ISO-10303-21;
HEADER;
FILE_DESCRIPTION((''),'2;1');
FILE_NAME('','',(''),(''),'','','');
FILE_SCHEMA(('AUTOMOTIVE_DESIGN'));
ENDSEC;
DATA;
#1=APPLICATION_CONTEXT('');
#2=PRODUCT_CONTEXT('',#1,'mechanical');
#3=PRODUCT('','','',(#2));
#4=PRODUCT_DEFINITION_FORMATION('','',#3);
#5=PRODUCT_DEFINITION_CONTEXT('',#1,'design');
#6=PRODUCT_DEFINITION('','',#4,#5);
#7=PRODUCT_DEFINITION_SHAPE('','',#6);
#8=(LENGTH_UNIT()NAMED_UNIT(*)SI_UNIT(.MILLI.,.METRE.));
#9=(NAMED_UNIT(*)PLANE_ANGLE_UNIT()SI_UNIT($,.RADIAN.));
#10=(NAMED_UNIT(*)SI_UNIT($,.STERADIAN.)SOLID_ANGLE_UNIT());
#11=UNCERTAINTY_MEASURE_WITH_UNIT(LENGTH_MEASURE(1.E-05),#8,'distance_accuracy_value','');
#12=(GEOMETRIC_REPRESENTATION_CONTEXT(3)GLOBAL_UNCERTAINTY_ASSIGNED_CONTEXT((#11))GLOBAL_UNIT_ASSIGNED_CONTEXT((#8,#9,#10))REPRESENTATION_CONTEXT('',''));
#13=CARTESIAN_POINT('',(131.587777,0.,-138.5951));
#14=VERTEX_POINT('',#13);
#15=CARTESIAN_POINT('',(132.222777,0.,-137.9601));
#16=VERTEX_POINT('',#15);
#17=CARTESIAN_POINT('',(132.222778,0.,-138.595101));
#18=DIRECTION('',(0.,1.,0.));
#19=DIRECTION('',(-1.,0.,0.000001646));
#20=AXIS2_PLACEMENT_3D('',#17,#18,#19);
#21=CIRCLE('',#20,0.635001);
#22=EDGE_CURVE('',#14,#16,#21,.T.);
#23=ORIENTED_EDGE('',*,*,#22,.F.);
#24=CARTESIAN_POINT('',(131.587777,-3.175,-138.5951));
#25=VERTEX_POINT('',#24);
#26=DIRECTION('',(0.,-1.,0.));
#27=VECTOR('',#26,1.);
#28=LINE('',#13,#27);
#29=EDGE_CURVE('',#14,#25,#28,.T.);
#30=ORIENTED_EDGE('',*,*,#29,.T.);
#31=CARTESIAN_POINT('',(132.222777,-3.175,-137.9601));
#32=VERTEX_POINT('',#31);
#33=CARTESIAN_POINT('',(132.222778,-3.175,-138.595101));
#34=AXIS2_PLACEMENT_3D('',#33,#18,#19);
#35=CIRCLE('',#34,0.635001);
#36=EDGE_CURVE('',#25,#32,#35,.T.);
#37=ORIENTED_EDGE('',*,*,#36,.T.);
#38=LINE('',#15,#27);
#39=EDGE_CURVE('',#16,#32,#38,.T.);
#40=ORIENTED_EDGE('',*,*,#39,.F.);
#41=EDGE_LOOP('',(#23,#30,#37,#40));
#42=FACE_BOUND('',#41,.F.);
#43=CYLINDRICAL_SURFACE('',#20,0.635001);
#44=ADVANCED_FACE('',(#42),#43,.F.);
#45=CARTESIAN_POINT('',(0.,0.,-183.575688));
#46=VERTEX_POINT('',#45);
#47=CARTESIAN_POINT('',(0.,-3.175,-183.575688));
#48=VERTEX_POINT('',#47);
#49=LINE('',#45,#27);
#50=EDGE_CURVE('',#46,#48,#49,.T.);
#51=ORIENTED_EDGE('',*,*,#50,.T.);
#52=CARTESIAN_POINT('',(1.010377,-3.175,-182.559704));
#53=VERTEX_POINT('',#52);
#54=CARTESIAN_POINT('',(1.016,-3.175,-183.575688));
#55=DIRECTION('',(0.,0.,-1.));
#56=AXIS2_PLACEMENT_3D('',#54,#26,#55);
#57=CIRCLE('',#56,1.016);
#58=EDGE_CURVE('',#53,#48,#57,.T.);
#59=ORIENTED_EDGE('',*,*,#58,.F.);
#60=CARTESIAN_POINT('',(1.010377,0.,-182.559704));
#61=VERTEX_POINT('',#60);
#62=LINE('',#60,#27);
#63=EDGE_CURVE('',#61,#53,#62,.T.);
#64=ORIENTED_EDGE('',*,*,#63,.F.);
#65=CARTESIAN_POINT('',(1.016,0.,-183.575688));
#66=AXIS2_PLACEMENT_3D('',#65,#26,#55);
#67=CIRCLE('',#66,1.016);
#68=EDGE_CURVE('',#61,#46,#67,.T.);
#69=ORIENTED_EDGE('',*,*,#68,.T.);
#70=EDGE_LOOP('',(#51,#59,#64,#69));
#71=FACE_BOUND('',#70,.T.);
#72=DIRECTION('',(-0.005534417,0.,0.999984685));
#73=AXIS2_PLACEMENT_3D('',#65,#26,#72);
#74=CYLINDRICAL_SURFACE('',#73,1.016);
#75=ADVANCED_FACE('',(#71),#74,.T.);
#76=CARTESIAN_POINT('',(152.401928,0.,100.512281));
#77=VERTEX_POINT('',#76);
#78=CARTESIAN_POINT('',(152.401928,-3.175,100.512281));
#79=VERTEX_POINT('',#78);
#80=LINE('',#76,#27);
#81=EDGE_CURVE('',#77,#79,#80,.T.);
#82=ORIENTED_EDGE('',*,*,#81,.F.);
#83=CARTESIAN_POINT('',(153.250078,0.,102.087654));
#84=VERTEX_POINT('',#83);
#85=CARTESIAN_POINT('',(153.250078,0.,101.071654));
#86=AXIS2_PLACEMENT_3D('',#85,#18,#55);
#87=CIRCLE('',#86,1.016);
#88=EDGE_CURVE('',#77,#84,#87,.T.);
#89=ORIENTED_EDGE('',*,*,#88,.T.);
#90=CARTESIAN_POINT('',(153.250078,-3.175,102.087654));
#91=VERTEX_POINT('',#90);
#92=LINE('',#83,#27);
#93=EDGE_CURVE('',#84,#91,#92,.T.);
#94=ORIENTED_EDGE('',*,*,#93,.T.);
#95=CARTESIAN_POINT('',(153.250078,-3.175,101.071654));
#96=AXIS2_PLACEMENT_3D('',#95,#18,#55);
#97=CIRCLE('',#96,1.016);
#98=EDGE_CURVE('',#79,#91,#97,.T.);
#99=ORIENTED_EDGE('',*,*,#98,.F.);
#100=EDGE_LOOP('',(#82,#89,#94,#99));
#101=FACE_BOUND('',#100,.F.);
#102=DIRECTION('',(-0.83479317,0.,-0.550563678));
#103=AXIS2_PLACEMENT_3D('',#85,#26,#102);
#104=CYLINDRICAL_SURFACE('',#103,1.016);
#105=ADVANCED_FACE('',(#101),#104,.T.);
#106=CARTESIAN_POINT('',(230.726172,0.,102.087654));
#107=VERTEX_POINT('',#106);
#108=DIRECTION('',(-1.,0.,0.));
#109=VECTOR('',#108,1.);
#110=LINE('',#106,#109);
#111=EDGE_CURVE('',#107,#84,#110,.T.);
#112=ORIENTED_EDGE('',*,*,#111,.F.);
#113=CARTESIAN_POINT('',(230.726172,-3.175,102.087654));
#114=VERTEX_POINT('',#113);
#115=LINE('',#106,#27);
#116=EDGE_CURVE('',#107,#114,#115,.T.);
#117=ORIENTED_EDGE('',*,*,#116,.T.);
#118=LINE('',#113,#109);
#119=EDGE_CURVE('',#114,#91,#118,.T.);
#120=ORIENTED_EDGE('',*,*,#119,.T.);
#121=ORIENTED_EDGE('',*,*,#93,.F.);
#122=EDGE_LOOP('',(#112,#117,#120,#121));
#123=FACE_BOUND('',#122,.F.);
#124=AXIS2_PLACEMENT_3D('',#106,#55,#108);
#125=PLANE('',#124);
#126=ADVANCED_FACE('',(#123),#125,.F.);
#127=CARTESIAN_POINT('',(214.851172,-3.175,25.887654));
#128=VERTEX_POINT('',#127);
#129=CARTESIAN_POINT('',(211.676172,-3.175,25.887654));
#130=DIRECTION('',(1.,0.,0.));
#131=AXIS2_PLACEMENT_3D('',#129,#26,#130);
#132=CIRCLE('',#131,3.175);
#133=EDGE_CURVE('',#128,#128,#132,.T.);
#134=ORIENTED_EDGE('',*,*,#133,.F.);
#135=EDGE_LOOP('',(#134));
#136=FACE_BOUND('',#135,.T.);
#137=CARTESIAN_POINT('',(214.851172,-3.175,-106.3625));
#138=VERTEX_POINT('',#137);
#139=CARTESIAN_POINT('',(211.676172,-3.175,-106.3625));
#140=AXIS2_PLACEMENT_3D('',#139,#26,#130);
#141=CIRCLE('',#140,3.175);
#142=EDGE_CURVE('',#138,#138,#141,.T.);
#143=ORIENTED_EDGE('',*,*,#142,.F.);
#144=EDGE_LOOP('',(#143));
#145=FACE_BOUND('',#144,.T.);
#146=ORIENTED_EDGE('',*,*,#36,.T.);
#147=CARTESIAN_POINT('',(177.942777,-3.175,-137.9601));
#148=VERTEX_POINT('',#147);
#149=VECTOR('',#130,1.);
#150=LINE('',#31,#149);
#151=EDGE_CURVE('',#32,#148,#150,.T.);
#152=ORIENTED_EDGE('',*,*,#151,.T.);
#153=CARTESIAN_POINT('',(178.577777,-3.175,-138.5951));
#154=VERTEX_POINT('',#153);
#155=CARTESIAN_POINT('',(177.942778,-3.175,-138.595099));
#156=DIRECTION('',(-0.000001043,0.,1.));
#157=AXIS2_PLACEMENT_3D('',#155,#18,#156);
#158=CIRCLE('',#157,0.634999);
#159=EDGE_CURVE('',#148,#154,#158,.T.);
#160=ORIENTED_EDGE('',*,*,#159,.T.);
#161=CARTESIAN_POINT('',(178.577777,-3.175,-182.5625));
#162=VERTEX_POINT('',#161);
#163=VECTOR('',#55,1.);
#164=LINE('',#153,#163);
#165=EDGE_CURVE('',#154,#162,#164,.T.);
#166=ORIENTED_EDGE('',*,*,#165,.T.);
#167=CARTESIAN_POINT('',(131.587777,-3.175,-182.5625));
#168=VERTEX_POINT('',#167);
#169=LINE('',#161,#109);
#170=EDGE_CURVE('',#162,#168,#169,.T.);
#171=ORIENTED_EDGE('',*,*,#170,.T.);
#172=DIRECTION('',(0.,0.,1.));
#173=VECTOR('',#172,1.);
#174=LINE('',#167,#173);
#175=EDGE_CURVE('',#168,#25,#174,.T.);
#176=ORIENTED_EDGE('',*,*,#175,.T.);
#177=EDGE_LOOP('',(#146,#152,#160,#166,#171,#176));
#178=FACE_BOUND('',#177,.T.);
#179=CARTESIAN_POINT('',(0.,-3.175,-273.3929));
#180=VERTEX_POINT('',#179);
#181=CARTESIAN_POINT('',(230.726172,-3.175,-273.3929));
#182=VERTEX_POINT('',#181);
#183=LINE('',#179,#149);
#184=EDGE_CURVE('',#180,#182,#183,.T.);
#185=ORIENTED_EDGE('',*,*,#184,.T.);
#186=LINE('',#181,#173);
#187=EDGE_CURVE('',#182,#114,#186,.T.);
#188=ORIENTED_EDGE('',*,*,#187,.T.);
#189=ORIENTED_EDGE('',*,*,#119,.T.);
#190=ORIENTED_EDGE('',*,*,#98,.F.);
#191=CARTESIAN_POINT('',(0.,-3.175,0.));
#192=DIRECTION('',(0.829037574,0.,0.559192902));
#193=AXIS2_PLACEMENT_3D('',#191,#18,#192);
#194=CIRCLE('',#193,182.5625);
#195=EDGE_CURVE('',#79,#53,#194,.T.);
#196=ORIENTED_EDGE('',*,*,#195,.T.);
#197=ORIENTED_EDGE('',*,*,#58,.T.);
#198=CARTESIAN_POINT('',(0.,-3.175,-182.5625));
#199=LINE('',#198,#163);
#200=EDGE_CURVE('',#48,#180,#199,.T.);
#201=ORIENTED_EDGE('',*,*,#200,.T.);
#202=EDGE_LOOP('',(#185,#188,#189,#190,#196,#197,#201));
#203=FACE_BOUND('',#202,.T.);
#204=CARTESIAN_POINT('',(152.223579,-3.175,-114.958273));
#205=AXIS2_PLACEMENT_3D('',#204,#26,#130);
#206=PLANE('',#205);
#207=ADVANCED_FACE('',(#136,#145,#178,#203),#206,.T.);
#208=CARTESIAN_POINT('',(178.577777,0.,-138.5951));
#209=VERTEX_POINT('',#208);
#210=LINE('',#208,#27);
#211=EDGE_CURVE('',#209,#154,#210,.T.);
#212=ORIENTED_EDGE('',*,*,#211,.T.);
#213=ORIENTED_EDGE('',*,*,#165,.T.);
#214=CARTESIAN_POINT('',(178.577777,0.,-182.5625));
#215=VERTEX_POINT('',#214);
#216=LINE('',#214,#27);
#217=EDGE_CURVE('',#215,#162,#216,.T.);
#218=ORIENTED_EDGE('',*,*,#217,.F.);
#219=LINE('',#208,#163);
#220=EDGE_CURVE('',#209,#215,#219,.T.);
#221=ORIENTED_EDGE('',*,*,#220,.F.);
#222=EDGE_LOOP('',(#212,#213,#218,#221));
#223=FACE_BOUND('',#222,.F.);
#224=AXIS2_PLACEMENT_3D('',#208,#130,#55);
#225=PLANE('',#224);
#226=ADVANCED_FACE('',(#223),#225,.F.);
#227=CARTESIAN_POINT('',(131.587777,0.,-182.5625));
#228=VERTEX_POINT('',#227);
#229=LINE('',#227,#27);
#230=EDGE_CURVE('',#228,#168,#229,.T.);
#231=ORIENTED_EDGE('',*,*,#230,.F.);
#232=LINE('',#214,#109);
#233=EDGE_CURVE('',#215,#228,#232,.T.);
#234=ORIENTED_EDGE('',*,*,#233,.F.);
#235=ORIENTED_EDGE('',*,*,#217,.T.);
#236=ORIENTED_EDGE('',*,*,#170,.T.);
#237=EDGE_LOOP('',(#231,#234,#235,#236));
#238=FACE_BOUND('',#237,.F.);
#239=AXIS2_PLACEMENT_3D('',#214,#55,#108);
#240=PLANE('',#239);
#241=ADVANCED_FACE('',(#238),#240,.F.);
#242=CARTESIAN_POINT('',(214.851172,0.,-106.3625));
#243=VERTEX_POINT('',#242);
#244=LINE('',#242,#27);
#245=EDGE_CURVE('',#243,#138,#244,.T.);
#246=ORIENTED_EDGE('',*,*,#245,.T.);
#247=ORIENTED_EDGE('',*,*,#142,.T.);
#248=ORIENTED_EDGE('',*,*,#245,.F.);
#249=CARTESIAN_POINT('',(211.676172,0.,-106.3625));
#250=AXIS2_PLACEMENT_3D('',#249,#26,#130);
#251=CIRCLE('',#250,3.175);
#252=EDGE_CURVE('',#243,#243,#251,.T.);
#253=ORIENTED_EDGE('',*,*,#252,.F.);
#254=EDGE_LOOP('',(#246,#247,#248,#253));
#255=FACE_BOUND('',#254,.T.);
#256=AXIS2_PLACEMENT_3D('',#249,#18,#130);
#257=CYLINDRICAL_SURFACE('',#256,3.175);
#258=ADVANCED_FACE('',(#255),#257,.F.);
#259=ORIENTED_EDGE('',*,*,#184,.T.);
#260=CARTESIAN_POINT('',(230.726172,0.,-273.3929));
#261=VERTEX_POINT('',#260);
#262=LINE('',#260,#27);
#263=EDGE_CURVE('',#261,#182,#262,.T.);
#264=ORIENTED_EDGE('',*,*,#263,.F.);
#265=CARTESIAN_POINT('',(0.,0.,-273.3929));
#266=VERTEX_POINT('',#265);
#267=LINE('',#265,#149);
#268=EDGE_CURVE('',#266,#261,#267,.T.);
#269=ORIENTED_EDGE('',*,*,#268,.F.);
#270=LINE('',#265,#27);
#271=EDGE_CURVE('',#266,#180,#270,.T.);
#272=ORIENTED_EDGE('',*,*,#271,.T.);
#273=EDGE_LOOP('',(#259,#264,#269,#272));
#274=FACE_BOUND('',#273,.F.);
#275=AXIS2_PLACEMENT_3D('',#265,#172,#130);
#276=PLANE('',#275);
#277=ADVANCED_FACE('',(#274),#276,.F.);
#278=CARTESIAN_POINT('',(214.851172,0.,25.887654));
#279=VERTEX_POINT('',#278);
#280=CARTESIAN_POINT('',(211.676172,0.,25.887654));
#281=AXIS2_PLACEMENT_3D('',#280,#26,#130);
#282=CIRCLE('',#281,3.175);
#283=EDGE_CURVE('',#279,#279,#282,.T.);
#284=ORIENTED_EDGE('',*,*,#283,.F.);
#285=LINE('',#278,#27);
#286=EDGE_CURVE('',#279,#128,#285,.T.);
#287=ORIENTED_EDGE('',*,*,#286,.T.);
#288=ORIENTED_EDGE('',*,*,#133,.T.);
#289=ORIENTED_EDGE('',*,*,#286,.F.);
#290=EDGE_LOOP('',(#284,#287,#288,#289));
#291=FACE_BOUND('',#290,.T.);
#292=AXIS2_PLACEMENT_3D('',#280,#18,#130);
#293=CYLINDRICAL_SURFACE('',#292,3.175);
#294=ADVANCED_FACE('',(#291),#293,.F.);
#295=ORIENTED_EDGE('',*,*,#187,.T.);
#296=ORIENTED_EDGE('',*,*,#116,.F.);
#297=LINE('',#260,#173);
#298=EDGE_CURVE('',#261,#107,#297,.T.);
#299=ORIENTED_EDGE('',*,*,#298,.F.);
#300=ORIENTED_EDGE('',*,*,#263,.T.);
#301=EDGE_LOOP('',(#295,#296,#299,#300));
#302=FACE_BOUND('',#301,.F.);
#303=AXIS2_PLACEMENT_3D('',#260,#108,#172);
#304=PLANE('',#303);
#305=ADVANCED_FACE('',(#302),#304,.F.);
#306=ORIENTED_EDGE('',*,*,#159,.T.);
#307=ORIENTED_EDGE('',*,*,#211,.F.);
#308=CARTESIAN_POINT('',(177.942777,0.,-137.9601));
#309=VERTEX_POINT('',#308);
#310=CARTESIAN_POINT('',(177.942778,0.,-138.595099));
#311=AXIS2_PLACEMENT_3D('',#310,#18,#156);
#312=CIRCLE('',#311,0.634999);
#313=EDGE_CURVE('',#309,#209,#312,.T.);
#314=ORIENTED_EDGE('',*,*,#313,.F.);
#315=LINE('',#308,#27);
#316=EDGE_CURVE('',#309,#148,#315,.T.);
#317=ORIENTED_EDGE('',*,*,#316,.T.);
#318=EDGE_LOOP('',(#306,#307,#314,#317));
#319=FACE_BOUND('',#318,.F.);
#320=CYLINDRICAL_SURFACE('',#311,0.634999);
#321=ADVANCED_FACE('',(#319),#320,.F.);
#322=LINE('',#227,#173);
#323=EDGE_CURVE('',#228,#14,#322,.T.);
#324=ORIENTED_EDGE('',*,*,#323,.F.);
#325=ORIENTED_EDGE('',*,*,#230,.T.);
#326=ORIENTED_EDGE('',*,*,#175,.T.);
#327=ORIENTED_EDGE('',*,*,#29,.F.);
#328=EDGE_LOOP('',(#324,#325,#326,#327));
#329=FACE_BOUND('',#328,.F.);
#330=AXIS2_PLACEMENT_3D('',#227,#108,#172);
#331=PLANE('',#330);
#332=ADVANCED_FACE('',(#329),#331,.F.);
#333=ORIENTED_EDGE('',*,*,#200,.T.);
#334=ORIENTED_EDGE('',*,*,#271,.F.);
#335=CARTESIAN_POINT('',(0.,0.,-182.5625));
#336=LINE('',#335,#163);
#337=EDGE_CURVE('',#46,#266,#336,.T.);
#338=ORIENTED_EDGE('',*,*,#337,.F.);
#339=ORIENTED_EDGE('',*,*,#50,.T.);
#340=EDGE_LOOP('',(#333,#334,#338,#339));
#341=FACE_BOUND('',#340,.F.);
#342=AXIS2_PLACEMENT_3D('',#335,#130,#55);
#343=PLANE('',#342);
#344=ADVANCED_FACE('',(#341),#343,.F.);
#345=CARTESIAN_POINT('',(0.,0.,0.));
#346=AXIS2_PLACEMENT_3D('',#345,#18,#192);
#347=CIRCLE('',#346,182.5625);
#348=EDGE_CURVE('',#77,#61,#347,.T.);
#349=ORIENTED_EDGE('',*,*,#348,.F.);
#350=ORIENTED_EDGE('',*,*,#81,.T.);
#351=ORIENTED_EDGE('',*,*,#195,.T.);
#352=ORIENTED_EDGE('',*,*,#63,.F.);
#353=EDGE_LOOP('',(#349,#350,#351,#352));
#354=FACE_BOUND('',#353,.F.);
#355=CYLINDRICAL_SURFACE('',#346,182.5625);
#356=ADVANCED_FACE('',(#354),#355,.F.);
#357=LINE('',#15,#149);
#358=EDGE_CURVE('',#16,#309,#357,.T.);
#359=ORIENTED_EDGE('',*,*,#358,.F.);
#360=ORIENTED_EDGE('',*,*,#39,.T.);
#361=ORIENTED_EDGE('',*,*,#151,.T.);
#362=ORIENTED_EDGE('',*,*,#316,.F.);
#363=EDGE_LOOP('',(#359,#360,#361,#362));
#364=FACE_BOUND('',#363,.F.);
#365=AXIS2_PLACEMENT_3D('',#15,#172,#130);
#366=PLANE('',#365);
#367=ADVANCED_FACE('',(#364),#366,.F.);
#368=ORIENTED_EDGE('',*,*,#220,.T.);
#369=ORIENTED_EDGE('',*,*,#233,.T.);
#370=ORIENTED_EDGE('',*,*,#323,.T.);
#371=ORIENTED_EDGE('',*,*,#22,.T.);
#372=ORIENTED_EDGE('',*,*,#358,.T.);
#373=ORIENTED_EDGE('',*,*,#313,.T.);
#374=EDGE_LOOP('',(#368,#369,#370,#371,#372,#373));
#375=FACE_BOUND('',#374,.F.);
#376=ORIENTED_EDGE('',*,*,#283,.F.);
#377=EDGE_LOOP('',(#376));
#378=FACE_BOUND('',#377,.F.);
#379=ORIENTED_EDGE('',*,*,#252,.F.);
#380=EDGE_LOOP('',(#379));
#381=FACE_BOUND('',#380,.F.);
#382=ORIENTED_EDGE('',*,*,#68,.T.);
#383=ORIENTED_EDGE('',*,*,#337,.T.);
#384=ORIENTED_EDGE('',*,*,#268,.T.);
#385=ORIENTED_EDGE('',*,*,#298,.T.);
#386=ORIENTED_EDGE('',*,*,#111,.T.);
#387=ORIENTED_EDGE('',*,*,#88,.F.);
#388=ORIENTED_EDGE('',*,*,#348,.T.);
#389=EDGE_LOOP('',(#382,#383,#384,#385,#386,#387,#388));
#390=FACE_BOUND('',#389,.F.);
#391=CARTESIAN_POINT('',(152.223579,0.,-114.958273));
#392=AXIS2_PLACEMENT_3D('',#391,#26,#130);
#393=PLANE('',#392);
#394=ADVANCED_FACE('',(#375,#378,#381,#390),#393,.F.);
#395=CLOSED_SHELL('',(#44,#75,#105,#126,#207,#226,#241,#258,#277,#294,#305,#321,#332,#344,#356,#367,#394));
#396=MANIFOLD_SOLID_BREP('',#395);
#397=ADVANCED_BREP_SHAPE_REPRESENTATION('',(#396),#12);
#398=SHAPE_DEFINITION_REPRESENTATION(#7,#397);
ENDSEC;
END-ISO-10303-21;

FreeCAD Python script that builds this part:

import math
import FreeCAD as App
import Part
import Sketcher

V = App.Vector
Q = App.Units.Quantity


def edges_at(feature, points):
    """Names of the edges that pass closest to the given points."""
    edges = feature.Shape.Edges
    near = lambda p: min(range(len(edges)), key=lambda i: edges[i].distToShape(Part.Vertex(*p))[0])
    return sorted({f"Edge{near(p) + 1}" for p in points})

doc = App.newDocument("Part")
body = doc.addObject("PartDesign::Body", "Body")

# Sketch on XZ plane
sketch1 = body.newObject("Sketcher::SketchObject", "Sketch")
sketch1.AttachmentSupport = (doc.getObject("XZ_Plane"), [""])
sketch1.MapMode = "FlatFace"
sketch1.addGeometry(Part.ArcOfCircle(Part.Circle(V(0, 0, 0), V(0, 0, 1), 182.6), math.radians(-90), math.radians(34)), False)
sketch1.addGeometry(Part.LineSegment(V(0, -182.6, 0), V(0, -273.4, 0)), False)
sketch1.addGeometry(Part.LineSegment(V(0, -273.4, 0), V(230.7, -273.4, 0)), False)
sketch1.addGeometry(Part.LineSegment(V(230.7, -273.4, 0), V(230.7, 102.1, 0)), False)
sketch1.addGeometry(Part.LineSegment(V(230.7, 102.1, 0), V(151.4, 102.1, 0)), False)
sketch1.addGeometry(Part.LineSegment(V(131.6, -182.6, 0), V(131.6, -138.6, 0)), False)
sketch1.addGeometry(Part.ArcOfCircle(Part.Circle(V(132.2, -138.6, 0), V(0, 0, 1), 0.6), math.radians(90), math.radians(180)), False)
sketch1.addGeometry(Part.LineSegment(V(132.2, -138, 0), V(177.9, -138, 0)), False)
sketch1.addGeometry(Part.ArcOfCircle(Part.Circle(V(177.9, -138.6, 0), V(0, 0, 1), 0.6), math.radians(0), math.radians(90)), False)
sketch1.addGeometry(Part.LineSegment(V(178.6, -138.6, 0), V(178.6, -182.6, 0)), False)
sketch1.addGeometry(Part.LineSegment(V(178.6, -182.6, 0), V(131.6, -182.6, 0)), False)
sketch1.addGeometry(Part.Circle(V(211.7, -106.4, 0), V(0, 0, 1), 3.2), False)
sketch1.addGeometry(Part.Circle(V(211.7, 25.9, 0), V(0, 0, 1), 3.2), False)
sketch1.addConstraint(Sketcher.Constraint("Coincident", 0, 1, 1, 1))
sketch1.addConstraint(Sketcher.Constraint("Coincident", 1, 2, 2, 1))
sketch1.addConstraint(Sketcher.Constraint("Coincident", 2, 2, 3, 1))
sketch1.addConstraint(Sketcher.Constraint("Coincident", 3, 2, 4, 1))
sketch1.addConstraint(Sketcher.Constraint("Coincident", 4, 2, 0, 2))
sketch1.addConstraint(Sketcher.Constraint("Tangent", 5, 2, 6, 2))
sketch1.addConstraint(Sketcher.Constraint("Tangent", 6, 1, 7, 1))
sketch1.addConstraint(Sketcher.Constraint("Tangent", 7, 2, 8, 2))
sketch1.addConstraint(Sketcher.Constraint("Tangent", 8, 1, 9, 1))
sketch1.addConstraint(Sketcher.Constraint("Coincident", 9, 2, 10, 1))
sketch1.addConstraint(Sketcher.Constraint("Coincident", 10, 2, 5, 1))
sketch1.addConstraint(Sketcher.Constraint("Vertical", 1))
sketch1.addConstraint(Sketcher.Constraint("Horizontal", 2))
sketch1.addConstraint(Sketcher.Constraint("Vertical", 3))
sketch1.addConstraint(Sketcher.Constraint("Horizontal", 4))
sketch1.addConstraint(Sketcher.Constraint("Vertical", 5))
sketch1.addConstraint(Sketcher.Constraint("Horizontal", 7))
sketch1.addConstraint(Sketcher.Constraint("Vertical", 9))
sketch1.addConstraint(Sketcher.Constraint("Horizontal", 10))
sketch1.addConstraint(Sketcher.Constraint("Coincident", 0, 3, -1, 1))
sketch1.addConstraint(Sketcher.Constraint("Equal", 6, 8))
sketch1.addConstraint(Sketcher.Constraint("Equal", 11, 12))
sketch1.addConstraint(Sketcher.Constraint("PointOnObject", 0, 1, -2))
sketch1.addConstraint(Sketcher.Constraint("Horizontal", 0, 1, 9, 2))
sketch1.addConstraint(Sketcher.Constraint("Vertical", 11, 3, 12, 3))
sketch1.addConstraint(Sketcher.Constraint("Diameter", 11, Q("0.25 in")))
sketch1.addConstraint(Sketcher.Constraint("DistanceX", 7, 1, 7, 2, Q("1.8 in")))
sketch1.addConstraint(Sketcher.Constraint("Radius", 0, Q("7.1875 in")))
sketch1.addConstraint(Sketcher.Constraint("Radius", 6, Q("0.025 in")))
sketch1.addConstraint(Sketcher.Constraint("DistanceY", 0, 1, 11, 3, Q("3 in")))
sketch1.addConstraint(Sketcher.Constraint("DistanceY", 12, 3, 3, 2, Q("3 in")))
sketch1.addConstraint(Sketcher.Constraint("DistanceX", 4, 2, 4, 1, Q("3.125 in")))
sketch1.addConstraint(Sketcher.Constraint("DistanceY", 1, 2, 1, 1, Q("3.576 in")))
sketch1.addConstraint(Sketcher.Constraint("DistanceY", 5, 1, 5, 2, Q("1.731 in")))
sketch1.addConstraint(Sketcher.Constraint("DistanceX", 11, 3, 2, 2, Q("0.75 in")))
sketch1.addConstraint(Sketcher.Constraint("DistanceX", 2, 1, 2, 2, 230.726172))
sketch1.addConstraint(Sketcher.Constraint("DistanceX", -1, 1, 6, 3, 132.222778))
pad1 = body.newObject("PartDesign::Pad", "Pad")
pad1.Profile = sketch1
pad1.Length = Q("0.125 in")
doc.recompute()

fillet = body.newObject("PartDesign::Fillet", "Fillet")
fillet.Base = (pad1, edges_at(pad1, [(151.351, -1.587, 102.088), (0, -1.587, -182.562)]))
fillet.Radius = Q("0.04 in")

doc.recompute()
